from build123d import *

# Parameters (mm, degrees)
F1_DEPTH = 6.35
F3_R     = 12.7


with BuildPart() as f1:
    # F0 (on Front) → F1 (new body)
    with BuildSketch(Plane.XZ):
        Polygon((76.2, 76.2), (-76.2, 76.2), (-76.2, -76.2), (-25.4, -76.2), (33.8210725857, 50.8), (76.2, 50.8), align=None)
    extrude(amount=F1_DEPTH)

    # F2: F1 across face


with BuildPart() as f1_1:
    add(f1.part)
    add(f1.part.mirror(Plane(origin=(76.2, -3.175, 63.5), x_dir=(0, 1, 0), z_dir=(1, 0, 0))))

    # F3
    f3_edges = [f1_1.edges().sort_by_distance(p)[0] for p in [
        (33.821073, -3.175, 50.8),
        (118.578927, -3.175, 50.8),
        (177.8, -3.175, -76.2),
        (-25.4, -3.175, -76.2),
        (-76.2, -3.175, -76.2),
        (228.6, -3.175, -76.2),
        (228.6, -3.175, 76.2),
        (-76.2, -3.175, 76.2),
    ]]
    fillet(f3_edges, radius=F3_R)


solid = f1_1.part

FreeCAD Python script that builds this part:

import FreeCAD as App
import Part
import Sketcher

V = App.Vector
Q = App.Units.Quantity


def edges_at(feature, points):
    """Names of the edges that pass closest to the given points."""
    edges = feature.Shape.Edges
    near = lambda p: min(range(len(edges)), key=lambda i: edges[i].distToShape(Part.Vertex(*p))[0])
    return sorted({f"Edge{near(p) + 1}" for p in points})


def add_polygon(sketch, points):
    """Adds a closed chain of lines whose ends are joined by coincident constraints."""
    first, n = sketch.GeometryCount, len(points)
    for a, b in zip(points, points[1:] + points[:1]):
        sketch.addGeometry(Part.LineSegment(App.Vector(*a, 0), App.Vector(*b, 0)), False)
    for i in range(n):
        sketch.addConstraint(Sketcher.Constraint("Coincident", first + i, 2, first + (i + 1) % n, 1))

doc = App.newDocument("Part")
params = doc.addObject("Spreadsheet::Sheet", "Params")
for row, (alias, value) in enumerate([
    ("sketch1_width", "6 in"),
    ("sketch1_width2", "2 in"),
    ("sketch1_height", "1 in"),
    ("pad1_length", "0.25 in"),
    ("fillet_radius", "0.5 in"),
], start=1):
    params.set(f"A{row}", alias)
    params.set(f"B{row}", "=" + value)
    params.setAlias(f"B{row}", alias)

body = doc.addObject("PartDesign::Body", "Body")

# Sketch on XZ plane
sketch1 = doc.addObject("Sketcher::SketchObject", "Sketch")
body.addObject(sketch1)
sketch1.AttachmentSupport = (doc.XZ_Plane, [""])
sketch1.MapMode = "FlatFace"
add_polygon(sketch1, [(76, 76), (-76, 76), (-76, -76), (-25, -76), (34, 51), (76, 51)])  # lines 0-5
sketch1.addConstraint([
    Sketcher.Constraint("Horizontal", 0),
    Sketcher.Constraint("Vertical", 1),
    Sketcher.Constraint("Horizontal", 2),
    Sketcher.Constraint("Horizontal", 4),
    Sketcher.Constraint("Vertical", 5),
    Sketcher.Constraint("Symmetric", 1, 2, 5, 2, -1, 1),
    Sketcher.Constraint("Equal", 0, 1),
    Sketcher.Constraint("DistanceX", 0, 2, 0, 1, Q("6 in")),
    Sketcher.Constraint("DistanceX", 2, 1, 2, 2, Q("2 in")),
    Sketcher.Constraint("DistanceY", 5, 1, 5, 2, Q("1 in")),
    Sketcher.Constraint("Angle", 3, Q("65 deg")),
])
sketch1.setExpression("Constraints[13]", "Params.sketch1_width")
sketch1.setExpression("Constraints[14]", "Params.sketch1_width2")
sketch1.setExpression("Constraints[15]", "Params.sketch1_height")
pad1 = doc.addObject("PartDesign::Pad", "Pad")
body.addObject(pad1)
pad1.Profile = sketch1
pad1.setExpression("Length", "Params.pad1_length")
body2 = doc.addObject("PartDesign::Body", "Body001")
doc.recompute()

body2.BaseFeature = body
doc.recompute()

mirroring = doc.addObject("Part::Mirroring", "Mirroring")
mirroring.Source = body
mirroring.Base = V(76.2, -3.175, 63.5)
mirroring.Normal = V(1, 0, 0)
body3 = doc.addObject("PartDesign::Body", "Body002")
body3.BaseFeature = mirroring
boolean = doc.addObject("PartDesign::Boolean", "Boolean")
body2.addObject(boolean)
boolean.Type = "Fuse"
boolean.addObjects([body3])
doc.recompute()

fillet = doc.addObject("PartDesign::Fillet", "Fillet")
body2.addObject(fillet)
fillet.Base = (boolean, edges_at(boolean, [
    (33.821, -3.175, 50.8),
    (118.579, -3.175, 50.8),
    (177.8, -3.175, -76.2),
    (-25.4, -3.175, -76.2),
    (-76.2, -3.175, -76.2),
    (228.6, -3.175, -76.2),
    (228.6, -3.175, 76.2),
    (-76.2, -3.175, 76.2),
]))
fillet.setExpression("Radius", "Params.fillet_radius")
mirroring.Visibility = False

doc.recompute()
